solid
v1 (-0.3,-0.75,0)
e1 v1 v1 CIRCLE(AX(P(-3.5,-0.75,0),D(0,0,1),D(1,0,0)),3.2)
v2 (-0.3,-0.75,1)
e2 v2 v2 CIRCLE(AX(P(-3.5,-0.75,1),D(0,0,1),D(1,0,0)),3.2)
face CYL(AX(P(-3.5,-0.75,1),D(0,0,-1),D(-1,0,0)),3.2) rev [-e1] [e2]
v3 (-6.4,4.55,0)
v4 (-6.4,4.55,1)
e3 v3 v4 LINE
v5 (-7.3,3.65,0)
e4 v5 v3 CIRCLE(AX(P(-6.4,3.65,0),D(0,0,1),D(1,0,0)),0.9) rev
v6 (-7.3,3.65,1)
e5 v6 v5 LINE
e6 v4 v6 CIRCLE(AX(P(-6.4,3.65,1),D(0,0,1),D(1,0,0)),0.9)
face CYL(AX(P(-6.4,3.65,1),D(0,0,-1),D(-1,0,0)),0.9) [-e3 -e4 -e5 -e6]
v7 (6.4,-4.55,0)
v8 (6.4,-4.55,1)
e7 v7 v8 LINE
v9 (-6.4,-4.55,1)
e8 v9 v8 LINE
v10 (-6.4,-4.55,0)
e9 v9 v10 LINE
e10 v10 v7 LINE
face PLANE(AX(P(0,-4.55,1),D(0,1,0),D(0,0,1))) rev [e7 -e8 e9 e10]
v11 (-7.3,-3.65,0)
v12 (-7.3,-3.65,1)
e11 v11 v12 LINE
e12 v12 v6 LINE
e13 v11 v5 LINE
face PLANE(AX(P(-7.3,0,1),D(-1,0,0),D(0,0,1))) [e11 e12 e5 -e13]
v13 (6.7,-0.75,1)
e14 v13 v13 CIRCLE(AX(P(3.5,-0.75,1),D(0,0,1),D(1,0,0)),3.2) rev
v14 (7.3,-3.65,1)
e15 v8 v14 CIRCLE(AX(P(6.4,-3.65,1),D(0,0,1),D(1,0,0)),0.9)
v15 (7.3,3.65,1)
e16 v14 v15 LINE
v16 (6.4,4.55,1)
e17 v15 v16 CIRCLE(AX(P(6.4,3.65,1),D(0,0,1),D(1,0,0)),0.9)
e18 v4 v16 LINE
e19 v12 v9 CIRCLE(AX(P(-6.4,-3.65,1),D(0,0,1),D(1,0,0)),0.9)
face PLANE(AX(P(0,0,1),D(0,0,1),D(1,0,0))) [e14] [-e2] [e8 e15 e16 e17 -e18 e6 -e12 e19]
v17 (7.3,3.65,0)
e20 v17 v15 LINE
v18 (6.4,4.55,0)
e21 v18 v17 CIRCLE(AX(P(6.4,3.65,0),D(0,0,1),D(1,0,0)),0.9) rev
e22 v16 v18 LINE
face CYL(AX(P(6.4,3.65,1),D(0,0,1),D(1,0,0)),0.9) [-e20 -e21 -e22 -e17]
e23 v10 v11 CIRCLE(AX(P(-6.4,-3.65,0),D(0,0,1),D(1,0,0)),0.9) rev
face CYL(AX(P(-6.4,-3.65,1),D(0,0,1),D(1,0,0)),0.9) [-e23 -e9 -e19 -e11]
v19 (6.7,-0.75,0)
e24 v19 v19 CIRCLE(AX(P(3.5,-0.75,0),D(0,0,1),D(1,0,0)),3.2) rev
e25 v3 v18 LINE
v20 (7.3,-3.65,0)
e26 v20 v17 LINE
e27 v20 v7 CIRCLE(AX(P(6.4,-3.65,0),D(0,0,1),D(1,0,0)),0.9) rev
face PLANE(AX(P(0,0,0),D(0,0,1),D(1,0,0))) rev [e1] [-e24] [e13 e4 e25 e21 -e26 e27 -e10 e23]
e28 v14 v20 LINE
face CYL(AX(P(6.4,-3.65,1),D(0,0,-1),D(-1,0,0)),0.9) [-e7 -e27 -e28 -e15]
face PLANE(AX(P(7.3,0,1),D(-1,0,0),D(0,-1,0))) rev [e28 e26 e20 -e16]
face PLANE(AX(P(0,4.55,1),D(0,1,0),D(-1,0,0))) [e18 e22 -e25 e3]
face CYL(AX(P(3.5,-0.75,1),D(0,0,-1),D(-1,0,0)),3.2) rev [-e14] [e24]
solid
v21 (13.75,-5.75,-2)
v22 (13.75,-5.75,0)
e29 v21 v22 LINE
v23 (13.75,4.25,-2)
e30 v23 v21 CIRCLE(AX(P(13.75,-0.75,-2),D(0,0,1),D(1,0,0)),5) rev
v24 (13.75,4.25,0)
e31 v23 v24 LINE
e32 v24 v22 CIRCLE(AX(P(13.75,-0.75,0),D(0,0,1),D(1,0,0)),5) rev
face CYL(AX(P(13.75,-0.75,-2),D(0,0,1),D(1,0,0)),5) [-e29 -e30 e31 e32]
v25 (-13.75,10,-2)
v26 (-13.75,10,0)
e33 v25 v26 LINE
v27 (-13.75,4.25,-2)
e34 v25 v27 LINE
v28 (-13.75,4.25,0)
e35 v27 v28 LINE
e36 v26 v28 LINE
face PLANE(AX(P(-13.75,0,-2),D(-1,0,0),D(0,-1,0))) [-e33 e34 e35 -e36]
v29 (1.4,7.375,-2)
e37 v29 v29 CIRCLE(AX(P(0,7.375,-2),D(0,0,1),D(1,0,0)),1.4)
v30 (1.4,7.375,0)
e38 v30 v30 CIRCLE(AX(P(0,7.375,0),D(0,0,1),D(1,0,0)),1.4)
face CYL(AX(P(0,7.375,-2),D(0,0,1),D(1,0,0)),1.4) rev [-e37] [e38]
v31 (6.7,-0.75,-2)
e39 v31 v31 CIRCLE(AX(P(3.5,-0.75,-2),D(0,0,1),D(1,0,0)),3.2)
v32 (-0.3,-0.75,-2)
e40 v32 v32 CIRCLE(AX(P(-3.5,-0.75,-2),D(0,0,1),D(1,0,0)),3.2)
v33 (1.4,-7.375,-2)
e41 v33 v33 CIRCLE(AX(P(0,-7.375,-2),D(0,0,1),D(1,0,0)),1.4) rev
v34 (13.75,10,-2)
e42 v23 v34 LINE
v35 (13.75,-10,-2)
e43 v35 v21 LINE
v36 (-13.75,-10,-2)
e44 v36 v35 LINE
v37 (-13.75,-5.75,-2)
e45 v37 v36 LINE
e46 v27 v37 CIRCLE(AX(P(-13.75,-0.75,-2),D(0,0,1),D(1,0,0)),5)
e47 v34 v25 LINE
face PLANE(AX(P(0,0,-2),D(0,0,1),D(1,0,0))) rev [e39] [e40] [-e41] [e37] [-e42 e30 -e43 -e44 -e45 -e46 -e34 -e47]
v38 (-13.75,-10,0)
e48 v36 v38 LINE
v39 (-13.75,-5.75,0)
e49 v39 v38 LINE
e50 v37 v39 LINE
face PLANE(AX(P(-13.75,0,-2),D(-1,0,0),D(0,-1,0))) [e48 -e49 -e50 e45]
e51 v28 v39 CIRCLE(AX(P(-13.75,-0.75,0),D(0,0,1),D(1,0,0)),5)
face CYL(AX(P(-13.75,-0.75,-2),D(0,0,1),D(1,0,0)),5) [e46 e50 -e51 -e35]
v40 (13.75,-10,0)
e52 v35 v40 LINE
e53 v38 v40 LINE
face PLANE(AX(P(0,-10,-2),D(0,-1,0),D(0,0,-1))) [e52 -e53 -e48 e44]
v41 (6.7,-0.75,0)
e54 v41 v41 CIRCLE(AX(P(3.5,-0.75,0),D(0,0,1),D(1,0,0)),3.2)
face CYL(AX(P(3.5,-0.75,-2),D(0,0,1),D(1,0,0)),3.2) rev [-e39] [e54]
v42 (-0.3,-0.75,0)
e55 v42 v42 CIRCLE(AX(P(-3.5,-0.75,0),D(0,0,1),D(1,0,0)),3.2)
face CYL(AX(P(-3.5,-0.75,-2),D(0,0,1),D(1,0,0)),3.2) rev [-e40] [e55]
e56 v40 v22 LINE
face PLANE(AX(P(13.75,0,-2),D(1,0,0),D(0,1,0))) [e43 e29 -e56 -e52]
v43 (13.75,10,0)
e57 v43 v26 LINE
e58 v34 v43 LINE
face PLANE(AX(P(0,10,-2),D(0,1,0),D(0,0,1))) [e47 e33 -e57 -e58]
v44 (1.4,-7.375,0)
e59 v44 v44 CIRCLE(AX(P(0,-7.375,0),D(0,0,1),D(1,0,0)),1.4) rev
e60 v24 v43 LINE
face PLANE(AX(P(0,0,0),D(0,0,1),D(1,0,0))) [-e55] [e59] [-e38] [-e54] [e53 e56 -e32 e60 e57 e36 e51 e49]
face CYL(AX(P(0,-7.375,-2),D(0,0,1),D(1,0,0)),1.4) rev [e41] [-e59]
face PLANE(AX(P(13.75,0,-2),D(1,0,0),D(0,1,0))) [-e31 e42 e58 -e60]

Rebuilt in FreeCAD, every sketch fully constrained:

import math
import FreeCAD as App
import Part
import Sketcher

V = App.Vector


def edges_at(feature, points):
    """Names of the edges that pass closest to the given points."""
    edges = feature.Shape.Edges
    near = lambda p: min(range(len(edges)), key=lambda i: edges[i].distToShape(Part.Vertex(*p))[0])
    return sorted({f"Edge{near(p) + 1}" for p in points})

doc = App.newDocument("Part")
body = doc.addObject("PartDesign::Body", "Body")

# Sketch on XY plane
sketch1 = body.newObject("Sketcher::SketchObject", "Sketch")
sketch1.AttachmentSupport = (doc.getObject("XY_Plane"), [""])
sketch1.MapMode = "FlatFace"
sketch1.addGeometry([
    Part.LineSegment(V(-7.3, 4.5, 0), V(-7.3, -4.5, 0)),  # 0
    Part.LineSegment(V(-7.3, -4.5, 0), V(7.3, -4.5, 0)),  # 1
    Part.LineSegment(V(7.3, -4.5, 0), V(7.3, 4.5, 0)),  # 2
    Part.LineSegment(V(7.3, 4.5, 0), V(-7.3, 4.5, 0)),  # 3
    Part.Circle(V(-3.5, -0.8, 0), V(0, 0, 1), 3.2),  # 4
    Part.Circle(V(3.5, -0.8, 0), V(0, 0, 1), 3.2),  # 5
], False)
sketch1.addConstraint([
    Sketcher.Constraint("Coincident", 0, 2, 1, 1),
    Sketcher.Constraint("Coincident", 1, 2, 2, 1),
    Sketcher.Constraint("Coincident", 2, 2, 3, 1),
    Sketcher.Constraint("Coincident", 3, 2, 0, 1),
    Sketcher.Constraint("Vertical", 0),
    Sketcher.Constraint("Horizontal", 1),
    Sketcher.Constraint("Vertical", 2),
    Sketcher.Constraint("Horizontal", 3),
    Sketcher.Constraint("Equal", 4, 5),
    Sketcher.Constraint("Symmetric", 0, 2, 2, 2, -1, 1),
    Sketcher.Constraint("Symmetric", 4, 3, 5, 3, -2),
    Sketcher.Constraint("Diameter", 4, 6.4),
    Sketcher.Constraint("DistanceX", 1, 1, 1, 2, 14.6),
    Sketcher.Constraint("DistanceY", 0, 2, 0, 1, 9.1),
    Sketcher.Constraint("DistanceX", 4, 3, 5, 3, 7.0),
    Sketcher.Constraint("DistanceY", 0, 2, 4, 3, 3.8),
])
pad1 = body.newObject("PartDesign::Pad", "Pad")
pad1.Profile = sketch1
pad1.Length = 1
doc.recompute()

fillet = body.newObject("PartDesign::Fillet", "Fillet")
fillet.Base = (pad1, edges_at(pad1, [
    (-7.3, -4.55, 0.5),
    (-7.3, 4.55, 0.5),
    (7.3, 4.55, 0.5),
    (7.3, -4.55, 0.5),
]))
fillet.Radius = 0.9
body2 = doc.addObject("PartDesign::Body", "Body001")

# Sketch on XY plane
sketch2 = body2.newObject("Sketcher::SketchObject", "Sketch001")
sketch2.AttachmentSupport = (doc.getObject("XY_Plane001"), [""])
sketch2.MapMode = "FlatFace"
sketch2.addGeometry([
    Part.ArcOfCircle(Part.Circle(V(-13.8, -0.8, 0), V(0, 0, 1), 5), math.radians(90), math.radians(270)),  # 0
    Part.LineSegment(V(-13.8, -5.8, 0), V(-13.8, -10, 0)),  # 1
    Part.LineSegment(V(-13.8, -10, 0), V(13.8, -10, 0)),  # 2
    Part.LineSegment(V(13.8, -10, 0), V(13.8, -5.8, 0)),  # 3
    Part.ArcOfCircle(Part.Circle(V(13.8, -0.8, 0), V(0, 0, 1), 5), math.radians(-90), math.radians(90)),  # 4
    Part.LineSegment(V(13.8, 4.2, 0), V(13.8, 10, 0)),  # 5
    Part.LineSegment(V(13.8, 10, 0), V(-13.8, 10, 0)),  # 6
    Part.LineSegment(V(-13.8, 10, 0), V(-13.8, 4.2, 0)),  # 7
    Part.Circle(V(-3.5, -0.8, 0), V(0, 0, 1), 3.2),  # 8
    Part.Circle(V(3.5, -0.8, 0), V(0, 0, 1), 3.2),  # 9
], False)
sketch2.addConstraint([
    Sketcher.Constraint("Coincident", 0, 2, 1, 1),
    Sketcher.Constraint("Coincident", 1, 2, 2, 1),
    Sketcher.Constraint("Coincident", 2, 2, 3, 1),
    Sketcher.Constraint("Coincident", 3, 2, 4, 1),
    Sketcher.Constraint("Coincident", 4, 2, 5, 1),
    Sketcher.Constraint("Coincident", 5, 2, 6, 1),
    Sketcher.Constraint("Coincident", 6, 2, 7, 1),
    Sketcher.Constraint("Coincident", 7, 2, 0, 1),
    Sketcher.Constraint("Vertical", 1),
    Sketcher.Constraint("Horizontal", 2),
    Sketcher.Constraint("Vertical", 3),
    Sketcher.Constraint("Vertical", 5),
    Sketcher.Constraint("Horizontal", 6),
    Sketcher.Constraint("Vertical", 7),
    Sketcher.Constraint("Equal", 0, 4),
    Sketcher.Constraint("Equal", 8, 9),
    Sketcher.Constraint("Symmetric", 1, 2, 5, 2, -1, 1),
    Sketcher.Constraint("Symmetric", 0, 3, 4, 3, -2),
    Sketcher.Constraint("Symmetric", 8, 3, 9, 3, -2),
    Sketcher.Constraint("Horizontal", 4, 3, 8, 3),
    Sketcher.Constraint("Vertical", 4, 3, 2, 2),
    Sketcher.Constraint("Vertical", 3, 2, 4, 2),
    Sketcher.Constraint("Vertical", 1, 2, 6, 2),
    Sketcher.Constraint("Radius", 0, 5.0),
    Sketcher.Constraint("Diameter", 8, 6.4),
    Sketcher.Constraint("DistanceX", 2, 1, 2, 2, 27.5),
    Sketcher.Constraint("DistanceY", 1, 2, -1, 1, 10.0),
    Sketcher.Constraint("DistanceX", 8, 3, 9, 3, 7.0),
    Sketcher.Constraint("DistanceY", 1, 2, 1, 1, 4.25),
])
pad2 = body2.newObject("PartDesign::Pad", "Pad001")
pad2.Profile = sketch2
pad2.Length = 2
pad2.Reversed = True

# Sketch on XY plane
sketch3 = body2.newObject("Sketcher::SketchObject", "Sketch002")
sketch3.AttachmentSupport = (doc.getObject("XY_Plane001"), [""])
sketch3.MapMode = "FlatFace"
sketch3.addGeometry([
    Part.ArcOfCircle(Part.Circle(V(0, 7.4, 0), V(0, 0, 1), 1.4), math.radians(0), math.radians(90)),
    Part.ArcOfCircle(Part.Circle(V(0, 7.4, 0), V(0, 0, 1), 1.4), math.radians(90), math.radians(270)),
    Part.ArcOfCircle(Part.Circle(V(0, 7.4, 0), V(0, 0, 1), 1.4), math.radians(-90), math.radians(0)),
    Part.Circle(V(0, -7.4, 0), V(0, 0, 1), 1.4),
], False)
sketch3.addConstraint([
    Sketcher.Constraint("Tangent", 0, 2, 1, 1),
    Sketcher.Constraint("Tangent", 1, 2, 2, 1),
    Sketcher.Constraint("Tangent", 2, 2, 0, 1),
    Sketcher.Constraint("Equal", 2, 3),
    Sketcher.Constraint("Symmetric", 0, 3, 3, 3, -1, 1),
    Sketcher.Constraint("PointOnObject", 0, 3, -2),
    Sketcher.Constraint("PointOnObject", 0, 2, -2),
    Sketcher.Constraint("PointOnObject", 1, 2, -2),
    Sketcher.Constraint("Horizontal", 1, 3, 2, 2),
    Sketcher.Constraint("Diameter", 3, 2.8),
    Sketcher.Constraint("DistanceY", 3, 3, 2, 3, 14.75),
])
pocket1 = body2.newObject("PartDesign::Pocket", "Pocket")
pocket1.Profile = sketch3
pocket1.Type = "ThroughAll"

doc.recompute()
